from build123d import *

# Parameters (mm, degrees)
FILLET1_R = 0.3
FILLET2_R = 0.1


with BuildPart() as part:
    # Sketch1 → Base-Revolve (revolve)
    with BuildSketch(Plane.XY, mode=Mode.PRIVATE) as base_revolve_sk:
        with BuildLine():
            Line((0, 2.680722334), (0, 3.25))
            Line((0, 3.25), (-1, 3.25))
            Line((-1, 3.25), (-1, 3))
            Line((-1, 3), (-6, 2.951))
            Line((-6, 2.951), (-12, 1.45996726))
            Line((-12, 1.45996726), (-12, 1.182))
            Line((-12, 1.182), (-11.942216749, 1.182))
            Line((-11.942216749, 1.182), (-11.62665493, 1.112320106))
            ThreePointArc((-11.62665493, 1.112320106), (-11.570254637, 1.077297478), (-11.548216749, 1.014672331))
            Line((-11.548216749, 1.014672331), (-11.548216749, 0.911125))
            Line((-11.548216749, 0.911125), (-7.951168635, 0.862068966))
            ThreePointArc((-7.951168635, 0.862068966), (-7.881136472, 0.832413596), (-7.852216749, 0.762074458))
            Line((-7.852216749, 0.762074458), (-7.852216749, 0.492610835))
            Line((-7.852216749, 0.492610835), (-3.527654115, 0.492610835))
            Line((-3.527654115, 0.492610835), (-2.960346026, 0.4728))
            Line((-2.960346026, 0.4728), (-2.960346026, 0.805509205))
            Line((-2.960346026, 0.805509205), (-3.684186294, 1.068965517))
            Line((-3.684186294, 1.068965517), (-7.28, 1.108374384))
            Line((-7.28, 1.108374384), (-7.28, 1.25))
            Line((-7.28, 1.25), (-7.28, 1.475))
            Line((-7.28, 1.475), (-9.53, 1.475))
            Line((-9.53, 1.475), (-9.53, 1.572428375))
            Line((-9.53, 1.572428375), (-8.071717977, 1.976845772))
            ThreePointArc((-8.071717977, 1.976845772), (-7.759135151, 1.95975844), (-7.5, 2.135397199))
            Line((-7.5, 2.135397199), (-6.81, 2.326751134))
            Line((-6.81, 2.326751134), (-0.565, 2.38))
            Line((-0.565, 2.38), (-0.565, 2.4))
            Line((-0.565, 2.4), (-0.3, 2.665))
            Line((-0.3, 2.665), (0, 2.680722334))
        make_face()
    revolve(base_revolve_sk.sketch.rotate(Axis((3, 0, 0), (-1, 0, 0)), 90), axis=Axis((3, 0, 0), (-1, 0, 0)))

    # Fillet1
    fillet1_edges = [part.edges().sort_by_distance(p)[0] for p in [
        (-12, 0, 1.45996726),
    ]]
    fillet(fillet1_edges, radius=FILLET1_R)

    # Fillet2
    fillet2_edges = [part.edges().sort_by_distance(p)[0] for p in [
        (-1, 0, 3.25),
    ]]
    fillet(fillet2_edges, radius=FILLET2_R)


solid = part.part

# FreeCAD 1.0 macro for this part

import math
import FreeCAD as App
import Part
import Sketcher
Q = App.Units.Quantity


def edges_at(feature, points):
    """Names of the edges that pass closest to the given points."""
    edges = feature.Shape.Edges
    near = lambda p: min(range(len(edges)), key=lambda i: edges[i].distToShape(Part.Vertex(*p))[0])
    return sorted({f"Edge{near(p) + 1}" for p in points})

doc = App.newDocument("Part")
body = doc.addObject("PartDesign::Body", "Body")

# Sketch on XY plane
sketch1 = body.newObject("Sketcher::SketchObject", "Sketch")
sketch1.AttachmentSupport = (doc.getObject("XY_Plane"), [""])
sketch1.MapMode = "FlatFace"
sketch1.addGeometry(Part.LineSegment(App.Vector(0, 2.681, 0), App.Vector(0, 3.25, 0)), False)
sketch1.addGeometry(Part.LineSegment(App.Vector(0, 3.25, 0), App.Vector(-1, 3.25, 0)), False)
sketch1.addGeometry(Part.LineSegment(App.Vector(-1, 3.25, 0), App.Vector(-1, 3, 0)), False)
sketch1.addGeometry(Part.LineSegment(App.Vector(-1, 3, 0), App.Vector(-6, 2.951, 0)), False)
sketch1.addGeometry(Part.LineSegment(App.Vector(-6, 2.951, 0), App.Vector(-12, 1.46, 0)), False)
sketch1.addGeometry(Part.LineSegment(App.Vector(-12, 1.46, 0), App.Vector(-12, 1.182, 0)), False)
sketch1.addGeometry(Part.LineSegment(App.Vector(-12, 1.182, 0), App.Vector(-11.942, 1.182, 0)), False)
sketch1.addGeometry(Part.LineSegment(App.Vector(-11.942, 1.182, 0), App.Vector(-11.627, 1.112, 0)), False)
sketch1.addGeometry(Part.ArcOfCircle(Part.Circle(App.Vector(-11.648, 1.015, 0), App.Vector(0, 0, 1), 0.1), math.radians(0), math.radians(78)), False)
sketch1.addGeometry(Part.LineSegment(App.Vector(-11.548, 1.015, 0), App.Vector(-11.548, 0.911, 0)), False)
sketch1.addGeometry(Part.LineSegment(App.Vector(-11.548, 0.911, 0), App.Vector(-7.951, 0.862, 0)), False)
sketch1.addGeometry(Part.ArcOfCircle(Part.Circle(App.Vector(-7.952, 0.762, 0), App.Vector(0, 0, 1), 0.1), math.radians(0), math.radians(89)), False)
sketch1.addGeometry(Part.LineSegment(App.Vector(-7.852, 0.762, 0), App.Vector(-7.852, 0.493, 0)), False)
sketch1.addGeometry(Part.LineSegment(App.Vector(-7.852, 0.493, 0), App.Vector(-3.528, 0.493, 0)), False)
sketch1.addGeometry(Part.LineSegment(App.Vector(-3.528, 0.493, 0), App.Vector(-2.96, 0.473, 0)), False)
sketch1.addGeometry(Part.LineSegment(App.Vector(-2.96, 0.473, 0), App.Vector(-2.96, 0.806, 0)), False)
sketch1.addGeometry(Part.LineSegment(App.Vector(-2.96, 0.806, 0), App.Vector(-3.684, 1.069, 0)), False)
sketch1.addGeometry(Part.LineSegment(App.Vector(-3.684, 1.069, 0), App.Vector(-7.28, 1.108, 0)), False)
sketch1.addGeometry(Part.LineSegment(App.Vector(-7.28, 1.108, 0), App.Vector(-7.28, 1.475, 0)), False)
sketch1.addGeometry(Part.LineSegment(App.Vector(-7.28, 1.475, 0), App.Vector(-9.53, 1.475, 0)), False)
sketch1.addGeometry(Part.LineSegment(App.Vector(-9.53, 1.475, 0), App.Vector(-9.53, 1.572, 0)), False)
sketch1.addGeometry(Part.LineSegment(App.Vector(-9.53, 1.572, 0), App.Vector(-8.072, 1.977, 0)), False)
sketch1.addGeometry(Part.ArcOfCircle(Part.Circle(App.Vector(-7.89, 2.432, 0), App.Vector(0, 0, 1), 0.49), math.radians(-112), math.radians(-37)), False)
sketch1.addGeometry(Part.LineSegment(App.Vector(-7.5, 2.135, 0), App.Vector(-6.81, 2.327, 0)), False)
sketch1.addGeometry(Part.LineSegment(App.Vector(-6.81, 2.327, 0), App.Vector(-0.565, 2.38, 0)), False)
sketch1.addGeometry(Part.LineSegment(App.Vector(-0.565, 2.38, 0), App.Vector(-0.565, 2.4, 0)), False)
sketch1.addGeometry(Part.LineSegment(App.Vector(-0.565, 2.4, 0), App.Vector(-0.3, 2.665, 0)), False)
sketch1.addGeometry(Part.LineSegment(App.Vector(-0.3, 2.665, 0), App.Vector(0, 2.681, 0)), False)
sketch1.addConstraint(Sketcher.Constraint("Coincident", 0, 2, 1, 1))
sketch1.addConstraint(Sketcher.Constraint("Coincident", 1, 2, 2, 1))
sketch1.addConstraint(Sketcher.Constraint("Coincident", 2, 2, 3, 1))
sketch1.addConstraint(Sketcher.Constraint("Coincident", 3, 2, 4, 1))
sketch1.addConstraint(Sketcher.Constraint("Coincident", 4, 2, 5, 1))
sketch1.addConstraint(Sketcher.Constraint("Coincident", 5, 2, 6, 1))
sketch1.addConstraint(Sketcher.Constraint("Coincident", 6, 2, 7, 1))
sketch1.addConstraint(Sketcher.Constraint("Tangent", 7, 2, 8, 2))
sketch1.addConstraint(Sketcher.Constraint("Tangent", 8, 1, 9, 1))
sketch1.addConstraint(Sketcher.Constraint("Coincident", 9, 2, 10, 1))
sketch1.addConstraint(Sketcher.Constraint("Coincident", 10, 2, 11, 2))
sketch1.addConstraint(Sketcher.Constraint("Tangent", 11, 1, 12, 1))
sketch1.addConstraint(Sketcher.Constraint("Coincident", 12, 2, 13, 1))
sketch1.addConstraint(Sketcher.Constraint("Coincident", 13, 2, 14, 1))
sketch1.addConstraint(Sketcher.Constraint("Coincident", 14, 2, 15, 1))
sketch1.addConstraint(Sketcher.Constraint("Coincident", 15, 2, 16, 1))
sketch1.addConstraint(Sketcher.Constraint("Coincident", 16, 2, 17, 1))
sketch1.addConstraint(Sketcher.Constraint("Coincident", 17, 2, 18, 1))
sketch1.addConstraint(Sketcher.Constraint("Coincident", 18, 2, 19, 1))
sketch1.addConstraint(Sketcher.Constraint("Coincident", 19, 2, 20, 1))
sketch1.addConstraint(Sketcher.Constraint("Coincident", 20, 2, 21, 1))
sketch1.addConstraint(Sketcher.Constraint("Coincident", 21, 2, 22, 1))
sketch1.addConstraint(Sketcher.Constraint("Coincident", 22, 2, 23, 1))
sketch1.addConstraint(Sketcher.Constraint("Coincident", 23, 2, 24, 1))
sketch1.addConstraint(Sketcher.Constraint("Coincident", 24, 2, 25, 1))
sketch1.addConstraint(Sketcher.Constraint("Coincident", 25, 2, 26, 1))
sketch1.addConstraint(Sketcher.Constraint("Coincident", 26, 2, 27, 1))
sketch1.addConstraint(Sketcher.Constraint("Coincident", 27, 2, 0, 1))
sketch1.addConstraint(Sketcher.Constraint("Vertical", 0))
sketch1.addConstraint(Sketcher.Constraint("Horizontal", 1))
sketch1.addConstraint(Sketcher.Constraint("Vertical", 2))
sketch1.addConstraint(Sketcher.Constraint("Vertical", 5))
sketch1.addConstraint(Sketcher.Constraint("Horizontal", 6))
sketch1.addConstraint(Sketcher.Constraint("Vertical", 9))
sketch1.addConstraint(Sketcher.Constraint("Vertical", 12))
sketch1.addConstraint(Sketcher.Constraint("Horizontal", 13))
sketch1.addConstraint(Sketcher.Constraint("Vertical", 15))
sketch1.addConstraint(Sketcher.Constraint("Vertical", 18))
sketch1.addConstraint(Sketcher.Constraint("Horizontal", 19))
sketch1.addConstraint(Sketcher.Constraint("Vertical", 20))
sketch1.addConstraint(Sketcher.Constraint("Vertical", 25))
sketch1.addConstraint(Sketcher.Constraint("Equal", 8, 11))
sketch1.addConstraint(Sketcher.Constraint("PointOnObject", 0, 2, -2))
sketch1.addConstraint(Sketcher.Constraint("Parallel", 21, 23))
sketch1.addConstraint(Sketcher.Constraint("Radius", 8, 0.1))
sketch1.addConstraint(Sketcher.Constraint("DistanceX", 1, 2, 1, 1, 1.0))
sketch1.addConstraint(Sketcher.Constraint("Angle", 14, Q("-2 deg")))
sketch1.addConstraint(Sketcher.Constraint("Angle", 16, Q("160 deg")))
sketch1.addConstraint(Sketcher.Constraint("Angle", 26, Q("45 deg")))
sketch1.addConstraint(Sketcher.Constraint("Angle", 27, Q("3 deg")))
sketch1.addConstraint(Sketcher.Constraint("Radius", 22, 0.49))
sketch1.addConstraint(Sketcher.Constraint("DistanceY", -1, 1, 2, 2, 3.0))
sketch1.addConstraint(Sketcher.Constraint("DistanceX", 3, 2, -1, 1, 6.0))
sketch1.addConstraint(Sketcher.Constraint("DistanceX", 4, 2, -1, 1, 12.0))
sketch1.addConstraint(Sketcher.Constraint("Angle", 21, Q("15.5 deg")))
sketch1.addConstraint(Sketcher.Constraint("DistanceX", 19, 2, 19, 1, 2.25))
sketch1.addConstraint(Sketcher.Constraint("DistanceY", 2, 2, 2, 1, 0.25))
sketch1.addConstraint(Sketcher.Constraint("DistanceY", 25, 1, 25, 2, 0.02))
sketch1.addConstraint(Sketcher.Constraint("DistanceX", 22, 2, -1, 1, 7.5))
sketch1.addConstraint(Sketcher.Constraint("DistanceY", -1, 1, 25, 2, 2.4))
sketch1.addConstraint(Sketcher.Constraint("DistanceX", 26, 2, -1, 1, 0.3))
sketch1.addConstraint(Sketcher.Constraint("DistanceX", 17, 2, -1, 1, 7.28))
sketch1.addConstraint(Sketcher.Constraint("DistanceX", 23, 2, -1, 1, 6.81))
sketch1.addConstraint(Sketcher.Constraint("DistanceX", 6, 2, 11, 3, 3.99))
sketch1.addConstraint(Sketcher.Constraint("DistanceY", -1, 1, 3, 2, 2.951))
sketch1.addConstraint(Sketcher.Constraint("DistanceY", -1, 1, 5, 2, 1.182))
sketch1.addConstraint(Sketcher.Constraint("DistanceY", -1, 1, 18, 2, 1.475))
sketch1.addConstraint(Sketcher.Constraint("DistanceX", 24, 2, -1, 1, 0.565))
sketch1.addConstraint(Sketcher.Constraint("DistanceX", 8, 3, 11, 3, 3.696))
sketch1.addConstraint(Sketcher.Constraint("DistanceY", 15, 1, 15, 2, 0.332709))
sketch1.addConstraint(Sketcher.Constraint("DistanceY", 20, 1, 20, 2, 0.097428))
sketch1.addConstraint(Sketcher.Constraint("DistanceY", -1, 1, 14, 2, 0.4728))
sketch1.addConstraint(Sketcher.Constraint("DistanceY", 13, 2, 15, 2, 0.312898))
sketch1.addConstraint(Sketcher.Constraint("DistanceY", 11, 1, 17, 2, 0.3463))
sketch1.addConstraint(Sketcher.Constraint("DistanceX", 21, 2, 11, 3, 0.119501))
sketch1.addConstraint(Sketcher.Constraint("Distance", 4, 6.18249))
sketch1.addConstraint(Sketcher.Constraint("Distance", 17, 3.59603))
sketch1.addConstraint(Sketcher.Constraint("Distance", 21, 1.513321))
sketch1.addConstraint(Sketcher.Constraint("DistanceX", 13, 1, 13, 2, 4.324563))
sketch1.addConstraint(Sketcher.Constraint("DistanceY", 9, 2, 9, 1, 0.103547))
sketch1.addConstraint(Sketcher.Constraint("DistanceY", 12, 2, 12, 1, 0.269464))
sketch1.addConstraint(Sketcher.Constraint("DistanceX", 22, 3, -1, 1, 7.890082))
sketch1.addConstraint(Sketcher.Constraint("DistanceY", -1, 1, 7, 2, 1.11232))
sketch1.addConstraint(Sketcher.Constraint("DistanceX", 10, 2, -1, 1, 7.951169))
revolution = body.newObject("PartDesign::Revolution", "Revolution")
revolution.Profile = sketch1
revolution.ReferenceAxis = (sketch1, ["H_Axis"])
revolution.Angle = 360
doc.recompute()

fillet = body.newObject("PartDesign::Fillet", "Fillet")
fillet.Base = (revolution, edges_at(revolution, [(-12, 0, 1.46)]))
fillet.Radius = 0.3
doc.recompute()

fillet2 = body.newObject("PartDesign::Fillet", "Fillet001")
fillet2.Base = (fillet, edges_at(fillet, [(-1, 0, 3.25)]))
fillet2.Radius = 0.1

doc.recompute()
